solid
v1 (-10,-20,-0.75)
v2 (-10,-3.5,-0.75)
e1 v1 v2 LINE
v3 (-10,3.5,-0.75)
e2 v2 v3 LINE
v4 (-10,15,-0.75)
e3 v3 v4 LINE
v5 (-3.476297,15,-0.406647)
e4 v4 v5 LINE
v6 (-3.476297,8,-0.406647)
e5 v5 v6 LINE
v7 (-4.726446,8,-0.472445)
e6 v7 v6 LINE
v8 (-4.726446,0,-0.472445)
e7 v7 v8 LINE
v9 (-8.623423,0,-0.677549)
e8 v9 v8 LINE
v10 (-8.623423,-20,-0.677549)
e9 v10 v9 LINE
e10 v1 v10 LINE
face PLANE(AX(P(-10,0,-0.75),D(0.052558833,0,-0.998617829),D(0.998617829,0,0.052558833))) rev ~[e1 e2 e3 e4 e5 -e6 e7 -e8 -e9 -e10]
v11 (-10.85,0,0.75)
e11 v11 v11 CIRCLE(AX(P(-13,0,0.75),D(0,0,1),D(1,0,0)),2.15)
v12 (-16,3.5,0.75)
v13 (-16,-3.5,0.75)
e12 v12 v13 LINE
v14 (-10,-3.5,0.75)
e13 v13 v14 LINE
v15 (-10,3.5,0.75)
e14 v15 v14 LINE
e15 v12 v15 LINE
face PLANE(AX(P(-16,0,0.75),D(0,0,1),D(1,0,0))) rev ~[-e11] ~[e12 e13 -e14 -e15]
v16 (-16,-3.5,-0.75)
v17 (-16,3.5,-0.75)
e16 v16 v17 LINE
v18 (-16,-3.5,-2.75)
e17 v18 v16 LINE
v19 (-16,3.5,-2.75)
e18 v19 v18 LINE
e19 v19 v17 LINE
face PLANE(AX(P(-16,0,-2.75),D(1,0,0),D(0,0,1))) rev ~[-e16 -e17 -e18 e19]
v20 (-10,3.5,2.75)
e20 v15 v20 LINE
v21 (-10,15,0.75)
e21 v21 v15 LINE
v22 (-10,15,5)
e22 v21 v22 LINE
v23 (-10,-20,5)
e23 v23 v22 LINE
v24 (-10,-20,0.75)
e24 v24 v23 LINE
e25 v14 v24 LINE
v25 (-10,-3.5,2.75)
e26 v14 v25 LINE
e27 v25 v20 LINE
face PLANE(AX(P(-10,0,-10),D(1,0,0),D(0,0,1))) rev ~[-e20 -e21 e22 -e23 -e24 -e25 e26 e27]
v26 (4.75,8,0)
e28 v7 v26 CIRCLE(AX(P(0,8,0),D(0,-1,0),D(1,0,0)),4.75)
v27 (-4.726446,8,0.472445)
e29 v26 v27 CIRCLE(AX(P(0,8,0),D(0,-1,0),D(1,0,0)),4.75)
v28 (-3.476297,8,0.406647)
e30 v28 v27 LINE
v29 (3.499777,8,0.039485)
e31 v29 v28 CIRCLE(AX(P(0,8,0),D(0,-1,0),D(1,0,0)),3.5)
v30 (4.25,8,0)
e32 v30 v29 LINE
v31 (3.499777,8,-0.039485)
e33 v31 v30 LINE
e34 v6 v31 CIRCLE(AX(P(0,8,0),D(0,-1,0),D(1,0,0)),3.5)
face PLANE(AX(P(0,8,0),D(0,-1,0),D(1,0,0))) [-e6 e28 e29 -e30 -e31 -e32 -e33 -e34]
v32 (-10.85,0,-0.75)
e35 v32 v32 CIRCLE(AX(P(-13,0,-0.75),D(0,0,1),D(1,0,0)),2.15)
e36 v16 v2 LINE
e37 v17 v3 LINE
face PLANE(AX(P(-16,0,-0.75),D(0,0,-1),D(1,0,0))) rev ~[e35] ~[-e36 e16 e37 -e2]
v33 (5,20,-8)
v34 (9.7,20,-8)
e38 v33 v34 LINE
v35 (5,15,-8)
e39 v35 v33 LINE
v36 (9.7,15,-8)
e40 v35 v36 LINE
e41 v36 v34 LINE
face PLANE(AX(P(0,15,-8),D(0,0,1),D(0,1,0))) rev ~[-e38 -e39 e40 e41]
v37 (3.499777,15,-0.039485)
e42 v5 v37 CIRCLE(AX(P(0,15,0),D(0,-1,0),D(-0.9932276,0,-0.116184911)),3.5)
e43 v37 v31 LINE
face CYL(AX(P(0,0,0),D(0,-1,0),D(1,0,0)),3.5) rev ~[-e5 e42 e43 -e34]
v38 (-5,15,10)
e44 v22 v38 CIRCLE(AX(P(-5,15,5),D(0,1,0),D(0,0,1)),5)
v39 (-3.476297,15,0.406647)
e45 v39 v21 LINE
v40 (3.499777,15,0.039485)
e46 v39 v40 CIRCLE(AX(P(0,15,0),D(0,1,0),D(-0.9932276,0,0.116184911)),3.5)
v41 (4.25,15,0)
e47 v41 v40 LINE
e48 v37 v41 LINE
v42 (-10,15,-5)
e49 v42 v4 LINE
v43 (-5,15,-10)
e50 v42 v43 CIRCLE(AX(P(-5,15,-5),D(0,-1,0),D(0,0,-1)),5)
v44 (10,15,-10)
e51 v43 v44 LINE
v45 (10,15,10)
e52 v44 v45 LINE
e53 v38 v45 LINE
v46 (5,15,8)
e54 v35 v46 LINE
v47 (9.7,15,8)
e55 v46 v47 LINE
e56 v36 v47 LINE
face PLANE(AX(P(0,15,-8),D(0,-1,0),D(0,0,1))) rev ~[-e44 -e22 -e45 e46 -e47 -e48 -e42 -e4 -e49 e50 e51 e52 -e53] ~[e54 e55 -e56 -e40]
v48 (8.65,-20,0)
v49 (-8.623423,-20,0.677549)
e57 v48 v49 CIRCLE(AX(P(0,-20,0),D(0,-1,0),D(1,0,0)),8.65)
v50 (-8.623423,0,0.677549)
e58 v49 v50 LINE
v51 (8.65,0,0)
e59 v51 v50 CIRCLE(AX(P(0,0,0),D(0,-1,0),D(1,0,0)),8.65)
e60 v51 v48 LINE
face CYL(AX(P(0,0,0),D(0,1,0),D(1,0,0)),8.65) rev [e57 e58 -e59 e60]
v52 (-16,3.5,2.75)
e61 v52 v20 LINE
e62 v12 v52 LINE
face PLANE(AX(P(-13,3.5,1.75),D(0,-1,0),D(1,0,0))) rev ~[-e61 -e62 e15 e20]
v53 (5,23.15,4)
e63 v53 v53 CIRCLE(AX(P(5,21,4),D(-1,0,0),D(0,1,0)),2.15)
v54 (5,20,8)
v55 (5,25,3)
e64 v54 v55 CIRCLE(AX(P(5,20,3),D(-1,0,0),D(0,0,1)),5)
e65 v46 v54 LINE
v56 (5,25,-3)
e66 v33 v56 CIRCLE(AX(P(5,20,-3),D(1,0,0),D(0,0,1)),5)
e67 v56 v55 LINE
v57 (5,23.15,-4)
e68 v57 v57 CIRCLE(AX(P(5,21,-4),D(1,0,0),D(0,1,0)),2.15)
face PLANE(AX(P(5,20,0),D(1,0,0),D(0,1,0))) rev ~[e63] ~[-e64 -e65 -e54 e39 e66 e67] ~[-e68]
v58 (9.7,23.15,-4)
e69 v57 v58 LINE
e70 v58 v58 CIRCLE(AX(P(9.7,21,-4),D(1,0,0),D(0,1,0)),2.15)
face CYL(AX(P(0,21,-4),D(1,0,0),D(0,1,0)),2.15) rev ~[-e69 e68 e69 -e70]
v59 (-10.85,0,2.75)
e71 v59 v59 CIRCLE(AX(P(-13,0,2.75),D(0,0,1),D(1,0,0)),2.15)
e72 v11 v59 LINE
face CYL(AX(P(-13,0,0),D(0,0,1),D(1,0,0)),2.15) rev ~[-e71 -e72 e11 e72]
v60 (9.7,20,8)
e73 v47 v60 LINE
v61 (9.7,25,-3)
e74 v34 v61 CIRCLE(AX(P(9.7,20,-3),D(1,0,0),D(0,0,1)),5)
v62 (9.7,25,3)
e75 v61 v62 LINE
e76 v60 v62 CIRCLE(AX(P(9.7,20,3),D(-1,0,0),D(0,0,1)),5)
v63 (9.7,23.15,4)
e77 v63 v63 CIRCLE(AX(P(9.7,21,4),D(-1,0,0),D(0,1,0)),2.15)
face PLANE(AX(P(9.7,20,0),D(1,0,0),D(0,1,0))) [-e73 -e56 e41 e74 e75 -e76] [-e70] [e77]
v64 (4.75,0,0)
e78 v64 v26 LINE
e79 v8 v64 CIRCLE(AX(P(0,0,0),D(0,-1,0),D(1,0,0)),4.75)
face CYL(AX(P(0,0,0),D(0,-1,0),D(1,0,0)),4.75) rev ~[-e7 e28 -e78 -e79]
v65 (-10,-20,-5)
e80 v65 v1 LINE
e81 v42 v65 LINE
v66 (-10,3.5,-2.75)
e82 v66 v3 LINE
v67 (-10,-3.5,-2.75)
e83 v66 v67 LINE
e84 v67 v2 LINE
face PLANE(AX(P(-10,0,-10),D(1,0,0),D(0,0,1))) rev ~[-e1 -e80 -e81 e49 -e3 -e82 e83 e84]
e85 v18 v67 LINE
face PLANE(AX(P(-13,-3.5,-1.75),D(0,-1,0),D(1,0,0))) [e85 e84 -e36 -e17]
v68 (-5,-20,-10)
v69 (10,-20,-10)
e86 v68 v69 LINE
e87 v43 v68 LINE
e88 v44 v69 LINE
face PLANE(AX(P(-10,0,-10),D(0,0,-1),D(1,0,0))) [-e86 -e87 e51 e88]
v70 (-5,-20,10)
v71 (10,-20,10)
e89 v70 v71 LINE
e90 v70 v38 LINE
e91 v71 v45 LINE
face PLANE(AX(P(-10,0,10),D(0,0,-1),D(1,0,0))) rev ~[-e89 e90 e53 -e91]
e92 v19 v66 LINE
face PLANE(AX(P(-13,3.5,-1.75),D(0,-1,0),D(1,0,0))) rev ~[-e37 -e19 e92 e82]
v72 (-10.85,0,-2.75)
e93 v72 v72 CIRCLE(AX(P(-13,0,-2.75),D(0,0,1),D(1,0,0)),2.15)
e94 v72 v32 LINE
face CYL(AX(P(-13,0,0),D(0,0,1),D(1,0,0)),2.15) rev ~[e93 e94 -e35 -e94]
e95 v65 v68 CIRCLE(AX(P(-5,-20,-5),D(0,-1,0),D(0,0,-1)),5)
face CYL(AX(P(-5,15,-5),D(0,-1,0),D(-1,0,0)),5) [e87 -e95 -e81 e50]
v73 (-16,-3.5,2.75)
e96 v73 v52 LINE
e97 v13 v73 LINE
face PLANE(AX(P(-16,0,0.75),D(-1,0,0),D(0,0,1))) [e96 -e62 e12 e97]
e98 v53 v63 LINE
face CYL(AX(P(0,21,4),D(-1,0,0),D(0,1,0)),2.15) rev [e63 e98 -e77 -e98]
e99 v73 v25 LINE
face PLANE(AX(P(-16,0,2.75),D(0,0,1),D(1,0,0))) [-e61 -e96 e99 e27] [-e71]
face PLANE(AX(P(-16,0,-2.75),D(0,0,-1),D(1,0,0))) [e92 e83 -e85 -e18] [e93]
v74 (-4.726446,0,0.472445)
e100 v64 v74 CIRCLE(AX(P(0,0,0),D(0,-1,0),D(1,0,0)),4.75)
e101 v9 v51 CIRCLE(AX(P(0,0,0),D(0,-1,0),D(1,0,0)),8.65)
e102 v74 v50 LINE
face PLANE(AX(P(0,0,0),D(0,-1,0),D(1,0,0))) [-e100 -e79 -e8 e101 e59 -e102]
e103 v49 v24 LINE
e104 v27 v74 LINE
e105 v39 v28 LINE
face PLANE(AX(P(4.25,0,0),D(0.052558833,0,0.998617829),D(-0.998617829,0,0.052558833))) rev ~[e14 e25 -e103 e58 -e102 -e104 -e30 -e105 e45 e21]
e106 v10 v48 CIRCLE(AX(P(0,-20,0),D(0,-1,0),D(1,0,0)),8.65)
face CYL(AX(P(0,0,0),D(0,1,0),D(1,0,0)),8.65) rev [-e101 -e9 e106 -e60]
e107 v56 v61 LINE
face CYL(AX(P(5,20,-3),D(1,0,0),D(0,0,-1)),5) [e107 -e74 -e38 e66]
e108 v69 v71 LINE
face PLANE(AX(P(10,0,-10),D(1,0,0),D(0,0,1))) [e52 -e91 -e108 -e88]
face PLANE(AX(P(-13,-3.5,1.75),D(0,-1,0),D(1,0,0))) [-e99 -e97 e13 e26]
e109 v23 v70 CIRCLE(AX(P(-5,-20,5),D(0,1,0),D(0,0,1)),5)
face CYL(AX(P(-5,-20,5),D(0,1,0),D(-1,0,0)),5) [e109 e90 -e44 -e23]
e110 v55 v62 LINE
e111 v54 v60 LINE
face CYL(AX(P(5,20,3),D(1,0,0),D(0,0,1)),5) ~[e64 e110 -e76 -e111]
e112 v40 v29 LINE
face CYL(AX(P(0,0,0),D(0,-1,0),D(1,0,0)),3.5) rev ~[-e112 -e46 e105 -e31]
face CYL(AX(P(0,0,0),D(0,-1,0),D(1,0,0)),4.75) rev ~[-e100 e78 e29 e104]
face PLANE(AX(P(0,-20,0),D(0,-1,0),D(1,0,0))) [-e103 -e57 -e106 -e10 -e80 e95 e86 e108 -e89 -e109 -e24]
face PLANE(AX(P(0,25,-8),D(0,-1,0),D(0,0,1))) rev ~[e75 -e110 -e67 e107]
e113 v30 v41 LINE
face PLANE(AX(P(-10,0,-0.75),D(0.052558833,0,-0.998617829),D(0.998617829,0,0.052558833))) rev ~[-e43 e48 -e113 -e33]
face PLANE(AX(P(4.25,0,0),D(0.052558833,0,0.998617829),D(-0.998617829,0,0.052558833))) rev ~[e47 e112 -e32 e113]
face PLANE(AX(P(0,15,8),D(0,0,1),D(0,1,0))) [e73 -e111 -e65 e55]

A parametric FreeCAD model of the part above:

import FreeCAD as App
import Part
import Sketcher

V = App.Vector
Q = App.Units.Quantity


def edges_at(feature, points):
    """Names of the edges that pass closest to the given points."""
    edges = feature.Shape.Edges
    near = lambda p: min(range(len(edges)), key=lambda i: edges[i].distToShape(Part.Vertex(*p))[0])
    return sorted({f"Edge{near(p) + 1}" for p in points})

doc = App.newDocument("Part")
params = doc.addObject("Spreadsheet::Sheet", "Params")
for row, (alias, value) in enumerate([
    ("sketch1_diameter", "17.3 mm"),
    ("sketch1_width", "20 mm"),
    ("pad1_length", "20 mm"),
    ("sketch2_width", "20 mm"),
    ("pad2_length", "15 mm"),
    ("sketch3_diameter", "9.5 mm"),
    ("pocket1_length", "8 mm"),
    ("sketch4_diameter", "4.15 mm"),
    ("pocket2_length", "11 mm"),
    ("sketch5_height", "1.5 mm"),
    ("pocket3_length", "50.6 mm"),
    ("sketch6_width", "6 mm"),
    ("sketch6_height", "2 mm"),
    ("pad3_length", "7 mm"),
    ("sketch7_diameter", "4.3 mm"),
    ("pocket4_length", "10.46 mm"),
    ("sketch8_diameter", "3.3 mm"),
    ("pocket5_length", "6.34 mm"),
    ("sketch9_diameter", "7 mm"),
    ("pocket6_length", "31.8 mm"),
    ("fillet_radius", "5 mm"),
    ("sketch10_width", "10 mm"),
    ("sketch10_height", "16 mm"),
    ("pad4_length", "9.7 mm"),
    ("sketch11_width", "10 mm"),
    ("sketch11_height", "16 mm"),
    ("pocket7_length", "5 mm"),
    ("sketch12_diameter", "4.3 mm"),
    ("pocket8_length", "25 mm"),
    ("fillet2_radius", "5 mm"),
], start=1):
    params.set(f"A{row}", alias)
    params.set(f"B{row}", "=" + value)
    params.setAlias(f"B{row}", alias)

body = doc.addObject("PartDesign::Body", "Body")

# Sketch on XZ plane
sketch1 = body.newObject("Sketcher::SketchObject", "Sketch")
sketch1.AttachmentSupport = (doc.getObject("XZ_Plane"), [""])
sketch1.MapMode = "FlatFace"
sketch1.addGeometry([
    Part.LineSegment(V(-10, 10, 0), V(-10, -10, 0)),  # 0
    Part.LineSegment(V(-10, -10, 0), V(10, -10, 0)),  # 1
    Part.LineSegment(V(10, -10, 0), V(10, 10, 0)),  # 2
    Part.LineSegment(V(10, 10, 0), V(-10, 10, 0)),  # 3
    Part.Circle(V(0, 0, 0), V(0, 0, 1), 9),  # 4
], False)
sketch1.addConstraint([
    Sketcher.Constraint("Coincident", 0, 2, 1, 1),
    Sketcher.Constraint("Coincident", 1, 2, 2, 1),
    Sketcher.Constraint("Coincident", 2, 2, 3, 1),
    Sketcher.Constraint("Coincident", 3, 2, 0, 1),
    Sketcher.Constraint("Vertical", 0),
    Sketcher.Constraint("Horizontal", 1),
    Sketcher.Constraint("Vertical", 2),
    Sketcher.Constraint("Horizontal", 3),
    Sketcher.Constraint("Coincident", 4, 3, -1, 1),
    Sketcher.Constraint("Symmetric", 0, 2, 2, 2, -1, 1),
    Sketcher.Constraint("Equal", 3, 0),
    Sketcher.Constraint("Diameter", 4, Q("17.3 mm")),
    Sketcher.Constraint("DistanceX", 1, 1, 1, 2, Q("20 mm")),
])
sketch1.setExpression("Constraints[11]", "Params.sketch1_diameter")
sketch1.setExpression("Constraints[12]", "Params.sketch1_width")
pad1 = body.newObject("PartDesign::Pad", "Pad")
pad1.Profile = sketch1
pad1.setExpression("Length", "Params.pad1_length")

# Sketch on XZ plane
sketch2 = body.newObject("Sketcher::SketchObject", "Sketch001")
sketch2.AttachmentSupport = (doc.getObject("XZ_Plane"), [""])
sketch2.MapMode = "FlatFace"
sketch2.addGeometry([
    Part.LineSegment(V(-10, 10, 0), V(-10, -10, 0)),
    Part.LineSegment(V(-10, -10, 0), V(10, -10, 0)),
    Part.LineSegment(V(10, -10, 0), V(10, 10, 0)),
    Part.LineSegment(V(10, 10, 0), V(-10, 10, 0)),
], False)
sketch2.addConstraint([
    Sketcher.Constraint("Coincident", 0, 2, 1, 1),
    Sketcher.Constraint("Coincident", 1, 2, 2, 1),
    Sketcher.Constraint("Coincident", 2, 2, 3, 1),
    Sketcher.Constraint("Coincident", 3, 2, 0, 1),
    Sketcher.Constraint("Vertical", 0),
    Sketcher.Constraint("Horizontal", 1),
    Sketcher.Constraint("Vertical", 2),
    Sketcher.Constraint("Horizontal", 3),
    Sketcher.Constraint("Symmetric", 0, 2, 2, 2, -1, 1),
    Sketcher.Constraint("Equal", 3, 0),
    Sketcher.Constraint("DistanceX", 1, 1, 1, 2, Q("20 mm")),
])
sketch2.setExpression("Constraints[10]", "Params.sketch2_width")
pad2 = body.newObject("PartDesign::Pad", "Pad001")
pad2.Profile = sketch2
pad2.setExpression("Length", "Params.pad2_length")
pad2.Reversed = True

# Sketch on XZ plane
sketch3 = body.newObject("Sketcher::SketchObject", "Sketch002")
sketch3.AttachmentSupport = (doc.getObject("XZ_Plane"), [""])
sketch3.MapMode = "FlatFace"
sketch3.addGeometry(Part.Circle(V(0, 0, 0), V(0, 0, 1), 4.8), False)
sketch3.addConstraint([
    Sketcher.Constraint("Coincident", 0, 3, -1, 1),
    Sketcher.Constraint("Diameter", 0, Q("9.5 mm")),
])
sketch3.setExpression("Constraints[1]", "Params.sketch3_diameter")
pocket1 = body.newObject("PartDesign::Pocket", "Pocket")
pocket1.Profile = sketch3
pocket1.setExpression("Length", "Params.pocket1_length")

# Sketch on XZ plane
sketch4 = body.newObject("Sketcher::SketchObject", "Sketch003")
sketch4.AttachmentSupport = (doc.getObject("XZ_Plane"), [""])
sketch4.MapMode = "FlatFace"
sketch4.addGeometry(Part.Circle(V(0, 0, 0), V(0, 0, 1), 2.1), False)
sketch4.addConstraint([
    Sketcher.Constraint("Coincident", 0, 3, -1, 1),
    Sketcher.Constraint("Diameter", 0, Q("4.15 mm")),
])
sketch4.setExpression("Constraints[1]", "Params.sketch4_diameter")
pocket2 = body.newObject("PartDesign::Pocket", "Pocket001")
pocket2.Profile = sketch4
pocket2.setExpression("Length", "Params.pocket2_length")

# Sketch on XZ plane
sketch5 = body.newObject("Sketcher::SketchObject", "Sketch004")
sketch5.AttachmentSupport = (doc.getObject("XZ_Plane"), [""])
sketch5.MapMode = "FlatFace"
sketch5.addGeometry([
    Part.LineSegment(V(4.2, 0, 0), V(-10, 0.8, 0)),
    Part.LineSegment(V(-10, 0.8, 0), V(-10, -0.8, 0)),
    Part.LineSegment(V(-10, -0.8, 0), V(4.2, 0, 0)),
], False)
sketch5.addConstraint([
    Sketcher.Constraint("Coincident", 0, 2, 1, 1),
    Sketcher.Constraint("Coincident", 1, 2, 2, 1),
    Sketcher.Constraint("Coincident", 2, 2, 0, 1),
    Sketcher.Constraint("Vertical", 1),
    Sketcher.Constraint("PointOnObject", 2, 2, -1),
    Sketcher.Constraint("Equal", 0, 2),
    Sketcher.Constraint("DistanceY", 1, 2, 1, 1, Q("1.5 mm")),
    Sketcher.Constraint("DistanceX", 0, 2, -1, 1, Q("10 mm")),
    Sketcher.Constraint("DistanceX", -1, 1, 2, 2, Q("4.25 mm")),
])
sketch5.setExpression("Constraints[6]", "Params.sketch5_height")
pocket3 = body.newObject("PartDesign::Pocket", "Pocket002")
pocket3.Profile = sketch5
pocket3.setExpression("Length", "Params.pocket3_length")
pocket3.Midplane = True

# Sketch on XZ plane
sketch6 = body.newObject("Sketcher::SketchObject", "Sketch005")
sketch6.AttachmentSupport = (doc.getObject("XZ_Plane"), [""])
sketch6.MapMode = "FlatFace"
sketch6.addGeometry([
    Part.LineSegment(V(-16, 2.8, 0), V(-16, 0.8, 0)),  # 0
    Part.LineSegment(V(-16, 0.8, 0), V(-10, 0.8, 0)),  # 1
    Part.LineSegment(V(-10, 0.8, 0), V(-10, 2.8, 0)),  # 2
    Part.LineSegment(V(-10, 2.8, 0), V(-16, 2.8, 0)),  # 3
    Part.LineSegment(V(-16, -0.8, 0), V(-16, -2.8, 0)),  # 4
    Part.LineSegment(V(-16, -2.8, 0), V(-10, -2.8, 0)),  # 5
    Part.LineSegment(V(-10, -2.8, 0), V(-10, -0.8, 0)),  # 6
    Part.LineSegment(V(-10, -0.8, 0), V(-16, -0.8, 0)),  # 7
], False)
sketch6.addConstraint([
    Sketcher.Constraint("Coincident", 0, 2, 1, 1),
    Sketcher.Constraint("Coincident", 1, 2, 2, 1),
    Sketcher.Constraint("Coincident", 2, 2, 3, 1),
    Sketcher.Constraint("Coincident", 3, 2, 0, 1),
    Sketcher.Constraint("Coincident", 4, 2, 5, 1),
    Sketcher.Constraint("Coincident", 5, 2, 6, 1),
    Sketcher.Constraint("Coincident", 6, 2, 7, 1),
    Sketcher.Constraint("Coincident", 7, 2, 4, 1),
    Sketcher.Constraint("Vertical", 0),
    Sketcher.Constraint("Horizontal", 1),
    Sketcher.Constraint("Vertical", 2),
    Sketcher.Constraint("Horizontal", 3),
    Sketcher.Constraint("Vertical", 4),
    Sketcher.Constraint("Horizontal", 5),
    Sketcher.Constraint("Vertical", 6),
    Sketcher.Constraint("Horizontal", 7),
    Sketcher.Constraint("Symmetric", 3, 2, 4, 2, -1),
    Sketcher.Constraint("Symmetric", 1, 2, 6, 2, -1),
    Sketcher.Constraint("DistanceX", 1, 1, 1, 2, Q("6 mm")),
    Sketcher.Constraint("DistanceY", 0, 2, 0, 1, Q("2 mm")),
    Sketcher.Constraint("DistanceX", 0, 2, -1, 1, Q("16 mm")),
    Sketcher.Constraint("DistanceY", 4, 2, 0, 2, Q("3.5 mm")),
])
sketch6.setExpression("Constraints[18]", "Params.sketch6_width")
sketch6.setExpression("Constraints[19]", "Params.sketch6_height")
pad3 = body.newObject("PartDesign::Pad", "Pad002")
pad3.Profile = sketch6
pad3.setExpression("Length", "Params.pad3_length")
pad3.Midplane = True

# Sketch on XY plane
sketch7 = body.newObject("Sketcher::SketchObject", "Sketch006")
sketch7.AttachmentSupport = (doc.getObject("XY_Plane"), [""])
sketch7.MapMode = "FlatFace"
sketch7.addGeometry(Part.Circle(V(-13, 0, 0), V(0, 0, 1), 2.1), False)
sketch7.addConstraint([
    Sketcher.Constraint("PointOnObject", 0, 3, -1),
    Sketcher.Constraint("Diameter", 0, Q("4.3 mm")),
    Sketcher.Constraint("DistanceX", 0, 3, -1, 1, Q("13 mm")),
])
sketch7.setExpression("Constraints[1]", "Params.sketch7_diameter")
pocket4 = body.newObject("PartDesign::Pocket", "Pocket003")
pocket4.Profile = sketch7
pocket4.setExpression("Length", "Params.pocket4_length")
pocket4.Midplane = True

# Sketch on XY plane
sketch8 = body.newObject("Sketcher::SketchObject", "Sketch007")
sketch8.AttachmentSupport = (doc.getObject("XY_Plane"), [""])
sketch8.MapMode = "FlatFace"
sketch8.addGeometry(Part.Circle(V(-13, 0, 0), V(0, 0, 1), 1.6), False)
sketch8.addConstraint([
    Sketcher.Constraint("PointOnObject", 0, 3, -1),
    Sketcher.Constraint("Diameter", 0, Q("3.3 mm")),
    Sketcher.Constraint("DistanceX", 0, 3, -1, 1, Q("13 mm")),
])
sketch8.setExpression("Constraints[1]", "Params.sketch8_diameter")
pocket5 = body.newObject("PartDesign::Pocket", "Pocket004")
pocket5.Profile = sketch8
pocket5.setExpression("Length", "Params.pocket5_length")

# Sketch on XZ plane
sketch9 = body.newObject("Sketcher::SketchObject", "Sketch008")
sketch9.AttachmentSupport = (doc.getObject("XZ_Plane"), [""])
sketch9.MapMode = "FlatFace"
sketch9.addGeometry(Part.Circle(V(0, 0, 0), V(0, 0, 1), 3.5), False)
sketch9.addConstraint([
    Sketcher.Constraint("Coincident", 0, 3, -1, 1),
    Sketcher.Constraint("Diameter", 0, Q("7 mm")),
])
sketch9.setExpression("Constraints[1]", "Params.sketch9_diameter")
pocket6 = body.newObject("PartDesign::Pocket", "Pocket005")
pocket6.Profile = sketch9
pocket6.setExpression("Length", "Params.pocket6_length")
doc.recompute()

fillet = body.newObject("PartDesign::Fillet", "Fillet")
fillet.Base = (pocket6, edges_at(pocket6, [(-10, -2.5, -10), (-10, -2.5, 10)]))
fillet.setExpression("Radius", "Params.fillet_radius")

# Sketch on YZ plane
sketch10 = body.newObject("Sketcher::SketchObject", "Sketch009")
sketch10.AttachmentSupport = (doc.getObject("YZ_Plane"), [""])
sketch10.MapMode = "FlatFace"
sketch10.addGeometry([
    Part.LineSegment(V(15, 8, 0), V(15, -8, 0)),
    Part.LineSegment(V(15, -8, 0), V(25, -8, 0)),
    Part.LineSegment(V(25, -8, 0), V(25, 8, 0)),
    Part.LineSegment(V(25, 8, 0), V(15, 8, 0)),
], False)
sketch10.addConstraint([
    Sketcher.Constraint("Coincident", 0, 2, 1, 1),
    Sketcher.Constraint("Coincident", 1, 2, 2, 1),
    Sketcher.Constraint("Coincident", 2, 2, 3, 1),
    Sketcher.Constraint("Coincident", 3, 2, 0, 1),
    Sketcher.Constraint("Vertical", 0),
    Sketcher.Constraint("Horizontal", 1),
    Sketcher.Constraint("Vertical", 2),
    Sketcher.Constraint("Horizontal", 3),
    Sketcher.Constraint("DistanceX", 1, 1, 1, 2, Q("10 mm")),
    Sketcher.Constraint("DistanceY", 0, 2, 0, 1, Q("16 mm")),
    Sketcher.Constraint("DistanceX", -1, 1, 0, 2, Q("15 mm")),
    Sketcher.Constraint("DistanceY", 0, 2, -1, 1, Q("8 mm")),
])
sketch10.setExpression("Constraints[8]", "Params.sketch10_width")
sketch10.setExpression("Constraints[9]", "Params.sketch10_height")
pad4 = body.newObject("PartDesign::Pad", "Pad003")
pad4.Profile = sketch10
pad4.setExpression("Length", "Params.pad4_length")

# Sketch on YZ plane
sketch11 = body.newObject("Sketcher::SketchObject", "Sketch010")
sketch11.AttachmentSupport = (doc.getObject("YZ_Plane"), [""])
sketch11.MapMode = "FlatFace"
sketch11.addGeometry([
    Part.LineSegment(V(15, 8, 0), V(15, -8, 0)),
    Part.LineSegment(V(15, -8, 0), V(25, -8, 0)),
    Part.LineSegment(V(25, -8, 0), V(25, 8, 0)),
    Part.LineSegment(V(25, 8, 0), V(15, 8, 0)),
], False)
sketch11.addConstraint([
    Sketcher.Constraint("Coincident", 0, 2, 1, 1),
    Sketcher.Constraint("Coincident", 1, 2, 2, 1),
    Sketcher.Constraint("Coincident", 2, 2, 3, 1),
    Sketcher.Constraint("Coincident", 3, 2, 0, 1),
    Sketcher.Constraint("Vertical", 0),
    Sketcher.Constraint("Horizontal", 1),
    Sketcher.Constraint("Vertical", 2),
    Sketcher.Constraint("Horizontal", 3),
    Sketcher.Constraint("DistanceX", 1, 1, 1, 2, Q("10 mm")),
    Sketcher.Constraint("DistanceY", 0, 2, 0, 1, Q("16 mm")),
    Sketcher.Constraint("DistanceX", -1, 1, 0, 2, Q("15 mm")),
    Sketcher.Constraint("DistanceY", 0, 2, -1, 1, Q("8 mm")),
])
sketch11.setExpression("Constraints[8]", "Params.sketch11_width")
sketch11.setExpression("Constraints[9]", "Params.sketch11_height")
pocket7 = body.newObject("PartDesign::Pocket", "Pocket006")
pocket7.Profile = sketch11
pocket7.setExpression("Length", "Params.pocket7_length")
pocket7.Reversed = True

# Sketch on YZ plane
sketch12 = body.newObject("Sketcher::SketchObject", "Sketch011")
sketch12.AttachmentSupport = (doc.getObject("YZ_Plane"), [""])
sketch12.MapMode = "FlatFace"
sketch12.addGeometry([
    Part.Circle(V(21, 4, 0), V(0, 0, 1), 2.1),
    Part.Circle(V(21, -4, 0), V(0, 0, 1), 2.1),
], False)
sketch12.addConstraint([
    Sketcher.Constraint("Equal", 0, 1),
    Sketcher.Constraint("Symmetric", 0, 3, 1, 3, -1),
    Sketcher.Constraint("Diameter", 0, Q("4.3 mm")),
    Sketcher.Constraint("DistanceX", -1, 1, 0, 3, Q("21 mm")),
    Sketcher.Constraint("DistanceY", -1, 1, 0, 3, Q("4 mm")),
])
sketch12.setExpression("Constraints[2]", "Params.sketch12_diameter")
pocket8 = body.newObject("PartDesign::Pocket", "Pocket007")
pocket8.Profile = sketch12
pocket8.setExpression("Length", "Params.pocket8_length")
pocket8.Midplane = True
doc.recompute()

fillet2 = body.newObject("PartDesign::Fillet", "Fillet001")
fillet2.Base = (pocket8, edges_at(pocket8, [(7.35, 25, -8), (7.35, 25, 8)]))
fillet2.setExpression("Radius", "Params.fillet2_radius")

doc.recompute()
